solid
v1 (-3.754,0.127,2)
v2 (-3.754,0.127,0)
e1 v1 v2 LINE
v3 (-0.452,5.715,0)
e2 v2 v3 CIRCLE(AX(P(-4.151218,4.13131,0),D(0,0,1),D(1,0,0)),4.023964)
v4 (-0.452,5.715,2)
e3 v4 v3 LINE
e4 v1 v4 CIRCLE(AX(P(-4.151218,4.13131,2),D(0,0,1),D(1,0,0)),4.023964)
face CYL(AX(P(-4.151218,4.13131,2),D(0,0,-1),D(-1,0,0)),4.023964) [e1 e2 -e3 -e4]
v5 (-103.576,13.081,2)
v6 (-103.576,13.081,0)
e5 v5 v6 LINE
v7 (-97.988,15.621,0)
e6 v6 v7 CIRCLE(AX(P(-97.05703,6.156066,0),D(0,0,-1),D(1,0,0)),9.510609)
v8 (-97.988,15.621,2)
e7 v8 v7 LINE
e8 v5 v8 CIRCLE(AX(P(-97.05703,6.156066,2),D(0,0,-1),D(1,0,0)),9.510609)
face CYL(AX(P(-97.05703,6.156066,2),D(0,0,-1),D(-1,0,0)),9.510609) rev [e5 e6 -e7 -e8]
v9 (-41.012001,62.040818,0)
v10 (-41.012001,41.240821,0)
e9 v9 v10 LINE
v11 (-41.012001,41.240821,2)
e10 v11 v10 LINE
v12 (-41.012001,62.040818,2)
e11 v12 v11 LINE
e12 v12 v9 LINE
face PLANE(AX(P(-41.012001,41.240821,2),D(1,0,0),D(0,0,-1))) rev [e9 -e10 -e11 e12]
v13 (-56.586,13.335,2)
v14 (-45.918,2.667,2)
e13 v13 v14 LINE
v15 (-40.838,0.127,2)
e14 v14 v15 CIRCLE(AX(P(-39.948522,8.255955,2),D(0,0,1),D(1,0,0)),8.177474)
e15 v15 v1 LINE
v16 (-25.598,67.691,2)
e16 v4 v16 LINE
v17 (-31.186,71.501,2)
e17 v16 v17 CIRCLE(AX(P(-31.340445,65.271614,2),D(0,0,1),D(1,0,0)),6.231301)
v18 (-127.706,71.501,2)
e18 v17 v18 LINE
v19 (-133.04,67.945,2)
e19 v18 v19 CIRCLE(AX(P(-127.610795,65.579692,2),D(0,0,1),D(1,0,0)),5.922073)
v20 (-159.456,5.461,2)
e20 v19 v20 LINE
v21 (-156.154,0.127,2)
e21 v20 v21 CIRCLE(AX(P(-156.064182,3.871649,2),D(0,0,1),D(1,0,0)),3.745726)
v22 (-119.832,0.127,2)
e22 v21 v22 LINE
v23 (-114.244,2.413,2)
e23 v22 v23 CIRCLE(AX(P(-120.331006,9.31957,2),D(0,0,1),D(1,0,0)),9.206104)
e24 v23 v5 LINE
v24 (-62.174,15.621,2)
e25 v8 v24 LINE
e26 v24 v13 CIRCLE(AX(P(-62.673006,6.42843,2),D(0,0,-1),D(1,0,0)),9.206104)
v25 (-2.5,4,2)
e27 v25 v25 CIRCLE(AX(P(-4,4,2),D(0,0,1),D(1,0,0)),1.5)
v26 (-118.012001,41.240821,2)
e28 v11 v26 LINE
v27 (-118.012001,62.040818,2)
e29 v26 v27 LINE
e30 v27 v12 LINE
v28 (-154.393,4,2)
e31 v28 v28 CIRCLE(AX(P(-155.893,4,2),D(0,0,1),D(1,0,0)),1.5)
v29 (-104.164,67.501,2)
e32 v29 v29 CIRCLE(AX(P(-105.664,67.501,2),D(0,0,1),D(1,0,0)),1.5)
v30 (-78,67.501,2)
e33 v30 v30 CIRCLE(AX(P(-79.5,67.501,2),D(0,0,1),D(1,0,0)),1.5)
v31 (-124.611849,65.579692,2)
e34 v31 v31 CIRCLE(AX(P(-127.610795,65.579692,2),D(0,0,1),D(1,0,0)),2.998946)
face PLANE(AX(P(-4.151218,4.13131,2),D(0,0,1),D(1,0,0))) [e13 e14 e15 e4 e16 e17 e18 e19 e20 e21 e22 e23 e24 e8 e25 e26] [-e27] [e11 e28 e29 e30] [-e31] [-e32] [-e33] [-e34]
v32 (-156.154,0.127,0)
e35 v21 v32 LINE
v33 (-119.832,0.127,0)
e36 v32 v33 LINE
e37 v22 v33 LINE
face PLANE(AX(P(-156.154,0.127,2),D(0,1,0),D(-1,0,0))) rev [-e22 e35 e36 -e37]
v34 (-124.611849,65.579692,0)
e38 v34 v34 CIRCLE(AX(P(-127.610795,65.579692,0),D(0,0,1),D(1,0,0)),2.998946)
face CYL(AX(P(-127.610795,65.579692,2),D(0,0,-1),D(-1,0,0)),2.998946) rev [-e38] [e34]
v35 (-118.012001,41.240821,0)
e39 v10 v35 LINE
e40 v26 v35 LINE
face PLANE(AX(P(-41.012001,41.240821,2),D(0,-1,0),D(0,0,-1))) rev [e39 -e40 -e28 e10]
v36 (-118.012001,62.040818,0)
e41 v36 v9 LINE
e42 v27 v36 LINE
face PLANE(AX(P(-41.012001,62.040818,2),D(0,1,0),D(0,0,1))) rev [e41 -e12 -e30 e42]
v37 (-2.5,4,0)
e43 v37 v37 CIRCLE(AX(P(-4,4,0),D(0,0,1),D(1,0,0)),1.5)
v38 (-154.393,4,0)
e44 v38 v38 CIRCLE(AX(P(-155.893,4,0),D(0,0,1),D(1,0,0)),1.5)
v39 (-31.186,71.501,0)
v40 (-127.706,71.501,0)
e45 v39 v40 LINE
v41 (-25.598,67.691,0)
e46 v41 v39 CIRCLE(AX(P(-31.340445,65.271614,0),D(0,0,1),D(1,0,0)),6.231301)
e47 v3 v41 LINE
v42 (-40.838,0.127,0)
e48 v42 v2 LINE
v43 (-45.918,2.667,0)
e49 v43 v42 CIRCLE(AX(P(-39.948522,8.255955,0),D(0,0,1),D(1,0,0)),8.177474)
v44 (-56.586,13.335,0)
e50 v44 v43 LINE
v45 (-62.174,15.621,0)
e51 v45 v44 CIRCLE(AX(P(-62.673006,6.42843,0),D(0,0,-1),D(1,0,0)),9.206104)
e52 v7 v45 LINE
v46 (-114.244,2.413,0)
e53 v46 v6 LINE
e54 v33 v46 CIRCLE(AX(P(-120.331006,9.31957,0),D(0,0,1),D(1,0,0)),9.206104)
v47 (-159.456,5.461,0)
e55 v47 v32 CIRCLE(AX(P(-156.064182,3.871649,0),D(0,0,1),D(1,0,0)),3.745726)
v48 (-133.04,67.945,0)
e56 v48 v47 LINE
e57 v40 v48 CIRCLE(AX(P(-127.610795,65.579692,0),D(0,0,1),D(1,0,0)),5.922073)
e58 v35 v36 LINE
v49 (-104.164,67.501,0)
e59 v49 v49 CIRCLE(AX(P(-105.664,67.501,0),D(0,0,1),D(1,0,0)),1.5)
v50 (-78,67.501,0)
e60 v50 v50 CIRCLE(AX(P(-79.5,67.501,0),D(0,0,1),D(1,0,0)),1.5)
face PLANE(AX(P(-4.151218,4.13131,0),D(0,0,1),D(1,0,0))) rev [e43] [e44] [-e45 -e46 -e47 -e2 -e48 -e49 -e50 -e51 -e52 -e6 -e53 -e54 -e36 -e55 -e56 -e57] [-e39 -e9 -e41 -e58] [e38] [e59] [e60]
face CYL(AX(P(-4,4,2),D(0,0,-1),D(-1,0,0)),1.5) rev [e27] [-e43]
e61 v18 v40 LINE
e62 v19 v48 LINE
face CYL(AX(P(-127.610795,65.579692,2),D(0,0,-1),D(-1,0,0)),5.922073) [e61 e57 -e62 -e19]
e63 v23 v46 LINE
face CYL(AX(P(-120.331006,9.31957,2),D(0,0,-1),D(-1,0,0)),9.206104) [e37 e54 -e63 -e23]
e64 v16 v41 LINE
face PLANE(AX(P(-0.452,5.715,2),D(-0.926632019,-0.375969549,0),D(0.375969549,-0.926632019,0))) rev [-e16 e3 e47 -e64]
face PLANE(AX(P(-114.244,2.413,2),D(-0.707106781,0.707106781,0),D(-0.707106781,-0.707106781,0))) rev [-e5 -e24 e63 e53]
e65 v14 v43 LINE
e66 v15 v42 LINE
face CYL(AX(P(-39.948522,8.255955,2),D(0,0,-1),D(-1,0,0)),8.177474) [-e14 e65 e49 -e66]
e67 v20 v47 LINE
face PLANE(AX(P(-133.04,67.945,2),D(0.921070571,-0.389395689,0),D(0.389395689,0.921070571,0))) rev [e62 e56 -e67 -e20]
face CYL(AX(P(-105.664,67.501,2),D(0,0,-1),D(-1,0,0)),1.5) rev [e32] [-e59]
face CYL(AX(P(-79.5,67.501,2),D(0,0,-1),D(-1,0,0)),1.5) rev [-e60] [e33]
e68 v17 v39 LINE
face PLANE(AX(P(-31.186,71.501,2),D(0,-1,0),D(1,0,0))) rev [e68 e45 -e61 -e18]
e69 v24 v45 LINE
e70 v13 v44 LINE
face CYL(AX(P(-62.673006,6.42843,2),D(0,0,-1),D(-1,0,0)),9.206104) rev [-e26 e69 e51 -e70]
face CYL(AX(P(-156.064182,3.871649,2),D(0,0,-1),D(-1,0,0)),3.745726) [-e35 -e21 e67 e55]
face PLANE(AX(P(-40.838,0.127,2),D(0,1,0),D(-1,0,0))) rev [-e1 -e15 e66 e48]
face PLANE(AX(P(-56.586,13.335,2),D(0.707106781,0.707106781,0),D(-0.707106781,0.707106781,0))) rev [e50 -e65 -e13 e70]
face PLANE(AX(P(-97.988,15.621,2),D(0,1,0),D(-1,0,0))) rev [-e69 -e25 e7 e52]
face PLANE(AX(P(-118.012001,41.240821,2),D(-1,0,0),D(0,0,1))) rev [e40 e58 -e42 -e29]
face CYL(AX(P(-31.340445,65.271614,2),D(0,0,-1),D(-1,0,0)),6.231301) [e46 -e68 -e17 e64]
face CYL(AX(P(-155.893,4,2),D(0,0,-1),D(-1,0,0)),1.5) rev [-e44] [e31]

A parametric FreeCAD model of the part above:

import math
import FreeCAD as App
import Part
import Sketcher

V = App.Vector
Q = App.Units.Quantity

doc = App.newDocument("Part")
params = doc.addObject("Spreadsheet::Sheet", "Params")
for row, (alias, value) in enumerate([
    ("sketch1_width", "3.8 in"),
    ("sketch1_width2", "1.43 in"),
    ("sketch1_width3", "1.41 in"),
    ("sketch1_width4", "1.46 in"),
    ("pad1_length", "2 mm"),
], start=1):
    params.set(f"A{row}", alias)
    params.set(f"B{row}", "=" + value)
    params.setAlias(f"B{row}", alias)

body = doc.addObject("PartDesign::Body", "Body")

sketch1 = doc.addObject("Sketcher::SketchObject", "Sketch")
body.addObject(sketch1)
sketch1.AttachmentSupport = (doc.XY_Plane, [""])
sketch1.MapMode = "FlatFace"
sketch1.addGeometry([
    Part.LineSegment(V(-0.5, 5.7, 0), V(-25.6, 67.7, 0)),
    Part.ArcOfCircle(Part.Circle(V(-31.3, 65.3, 0), V(0, 0, 1), 6.2), math.radians(23), math.radians(89)),
    Part.LineSegment(V(-31.2, 71.5, 0), V(-127.7, 71.5, 0)),
    Part.ArcOfCircle(Part.Circle(V(-127.6, 65.6, 0), V(0, 0, 1), 5.9), math.radians(91), math.radians(156)),
    Part.LineSegment(V(-133, 67.9, 0), V(-159.5, 5.5, 0)),
    Part.ArcOfCircle(Part.Circle(V(-156.1, 3.9, 0), V(0, 0, 1), 3.7), math.radians(155), math.radians(269)),
    Part.LineSegment(V(-156.2, 0.1, 0), V(-119.8, 0.1, 0)),
    Part.ArcOfCircle(Part.Circle(V(-120.3, 9.3, 0), V(0, 0, 1), 9.2), math.radians(-87), math.radians(-49)),
    Part.LineSegment(V(-114.2, 2.4, 0), V(-103.6, 13.1, 0)),
    Part.ArcOfCircle(Part.Circle(V(-97.1, 6.2, 0), V(0, 0, 1), 9.5), math.radians(96), math.radians(133)),
    Part.LineSegment(V(-98, 15.6, 0), V(-62.2, 15.6, 0)),
    Part.ArcOfCircle(Part.Circle(V(-62.7, 6.4, 0), V(0, 0, 1), 9.2), math.radians(49), math.radians(87)),
    Part.LineSegment(V(-56.6, 13.3, 0), V(-45.9, 2.7, 0)),
    Part.ArcOfCircle(Part.Circle(V(-39.9, 8.3, 0), V(0, 0, 1), 8.2), math.radians(-137), math.radians(-96)),
    Part.LineSegment(V(-40.8, 0.1, 0), V(-3.8, 0.1, 0)),
    Part.ArcOfCircle(Part.Circle(V(-4.2, 4.1, 0), V(0, 0, 1), 4), math.radians(-84), math.radians(23)),
    Part.Circle(V(-155.9, 4, 0), V(0, 0, 1), 1.5),
    Part.Circle(V(-4, 4, 0), V(0, 0, 1), 1.5),
    Part.Circle(V(-127.6, 65.6, 0), V(0, 0, 1), 3),
    Part.Circle(V(-105.7, 67.5, 0), V(0, 0, 1), 1.5),
    Part.Circle(V(-79.5, 67.5, 0), V(0, 0, 1), 1.5),
], False)
sketch1.addConstraint([
    Sketcher.Constraint("Coincident", 0, 2, 1, 1),
    Sketcher.Constraint("Coincident", 1, 2, 2, 1),
    Sketcher.Constraint("Coincident", 2, 2, 3, 1),
    Sketcher.Constraint("Coincident", 3, 2, 4, 1),
    Sketcher.Constraint("Coincident", 4, 2, 5, 1),
    Sketcher.Constraint("Coincident", 5, 2, 6, 1),
    Sketcher.Constraint("Coincident", 6, 2, 7, 1),
    Sketcher.Constraint("Coincident", 7, 2, 8, 1),
    Sketcher.Constraint("Coincident", 8, 2, 9, 2),
    Sketcher.Constraint("Coincident", 9, 1, 10, 1),
    Sketcher.Constraint("Coincident", 10, 2, 11, 2),
    Sketcher.Constraint("Coincident", 11, 1, 12, 1),
    Sketcher.Constraint("Coincident", 12, 2, 13, 1),
    Sketcher.Constraint("Coincident", 13, 2, 14, 1),
    Sketcher.Constraint("Coincident", 14, 2, 15, 1),
    Sketcher.Constraint("Coincident", 15, 2, 0, 1),
    Sketcher.Constraint("Horizontal", 2),
    Sketcher.Constraint("Horizontal", 6),
    Sketcher.Constraint("Horizontal", 10),
    Sketcher.Constraint("Horizontal", 14),
    Sketcher.Constraint("Coincident", 18, 3, 3, 3),
    Sketcher.Constraint("Equal", 7, 11),
    Sketcher.Constraint("Equal", 16, 17),
    Sketcher.Constraint("Equal", 17, 19),
    Sketcher.Constraint("Equal", 19, 20),
    Sketcher.Constraint("Perpendicular", 8, 12),
    Sketcher.Constraint("Horizontal", 16, 3, 17, 3),
    Sketcher.Constraint("Horizontal", 19, 3, 20, 3),
    Sketcher.Constraint("Horizontal", 6, 2, 13, 2),
    Sketcher.Constraint("Equal", 8, 12),
    Sketcher.Constraint("DistanceX", 2, 2, 2, 1, Q("3.8 in")),
    Sketcher.Constraint("Angle", 8, Q("45 deg")),
    Sketcher.Constraint("DistanceX", 6, 1, 6, 2, Q("1.43 in")),
    Sketcher.Constraint("DistanceX", 10, 1, 10, 2, Q("1.41 in")),
    Sketcher.Constraint("DistanceX", 14, 1, 14, 2, Q("1.46 in")),
    Sketcher.Constraint("DistanceY", 8, 2, 9, 1, Q("0.1 in")),
    Sketcher.Constraint("DistanceX", 12, 2, 13, 2, Q("0.2 in")),
    Sketcher.Constraint("DistanceY", 13, 2, 12, 2, Q("0.1 in")),
    Sketcher.Constraint("Diameter", 16, Q("3 mm")),
    Sketcher.Constraint("DistanceX", 19, 3, -1, 1, Q("4.16 in")),
    Sketcher.Constraint("Radius", 1, Q("6.231301 mm")),
    Sketcher.Constraint("DistanceX", 7, 3, 11, 3, Q("2.27 in")),
    Sketcher.Constraint("DistanceX", 1, 2, 0, 2, Q("0.22 in")),
    Sketcher.Constraint("DistanceY", 0, 2, 1, 2, Q("0.15 in")),
    Sketcher.Constraint("DistanceX", 3, 2, 2, 2, Q("0.21 in")),
    Sketcher.Constraint("DistanceY", 3, 2, 2, 2, Q("0.14 in")),
    Sketcher.Constraint("DistanceX", 4, 2, 3, 2, Q("1.04 in")),
    Sketcher.Constraint("DistanceY", 4, 2, 3, 2, Q("2.46 in")),
    Sketcher.Constraint("DistanceX", 4, 2, 5, 2, Q("0.13 in")),
    Sketcher.Constraint("DistanceY", 5, 2, 4, 2, Q("0.21 in")),
    Sketcher.Constraint("DistanceX", 6, 2, 7, 2, Q("0.22 in")),
    Sketcher.Constraint("DistanceY", 6, 2, 7, 2, Q("0.09 in")),
    Sketcher.Constraint("DistanceX", 7, 2, 8, 2, Q("0.42 in")),
    Sketcher.Constraint("DistanceX", 8, 2, 9, 1, Q("0.22 in")),
    Sketcher.Constraint("DistanceX", 14, 2, 15, 2, Q("0.13 in")),
    Sketcher.Constraint("DistanceY", 14, 2, 15, 2, Q("0.22 in")),
    Sketcher.Constraint("Diameter", 18, Q("5.997892 mm")),
    Sketcher.Constraint("DistanceY", -1, 1, 0, 2, Q("2.665 in")),
    Sketcher.Constraint("Radius", 9, Q("9.510609 mm")),
    Sketcher.Constraint("Radius", 3, Q("5.922073 mm")),
    Sketcher.Constraint("Radius", 5, Q("3.745726 mm")),
    Sketcher.Constraint("Radius", 7, Q("9.206104 mm")),
    Sketcher.Constraint("Radius", 13, Q("8.177474 mm")),
    Sketcher.Constraint("Radius", 15, Q("4.023964 mm")),
    Sketcher.Constraint("DistanceX", 16, 3, -1, 1, Q("155.893 mm")),
    Sketcher.Constraint("DistanceY", -1, 1, 16, 3, Q("4 mm")),
    Sketcher.Constraint("DistanceX", 17, 3, -1, 1, Q("4 mm")),
    Sketcher.Constraint("DistanceY", -1, 1, 19, 3, Q("67.501 mm")),
    Sketcher.Constraint("DistanceX", 20, 3, -1, 1, Q("79.5 mm")),
    Sketcher.Constraint("DistanceX", 0, 2, -1, 1, Q("25.598 mm")),
])
sketch1.setExpression("Constraints[30]", "Params.sketch1_width")
sketch1.setExpression("Constraints[32]", "Params.sketch1_width2")
sketch1.setExpression("Constraints[33]", "Params.sketch1_width3")
sketch1.setExpression("Constraints[34]", "Params.sketch1_width4")
pad1 = doc.addObject("PartDesign::Pad", "Pad")
body.addObject(pad1)
pad1.Profile = sketch1
pad1.setExpression("Length", "Params.pad1_length")

sketch2 = doc.addObject("Sketcher::SketchObject", "Sketch001")
body.addObject(sketch2)
sketch2.AttachmentSupport = (doc.XY_Plane, [""])
sketch2.MapMode = "FlatFace"
sketch2.addGeometry([
    Part.LineSegment(V(-41, 62, 0), V(-41, 41, 0)),
    Part.LineSegment(V(-41, 41, 0), V(-118, 41, 0)),
    Part.LineSegment(V(-118, 41, 0), V(-118, 62, 0)),
    Part.LineSegment(V(-118, 62, 0), V(-41, 62, 0)),
], False)
sketch2.addConstraint([
    Sketcher.Constraint("Coincident", 0, 2, 1, 1),
    Sketcher.Constraint("Coincident", 1, 2, 2, 1),
    Sketcher.Constraint("Coincident", 2, 2, 3, 1),
    Sketcher.Constraint("Coincident", 3, 2, 0, 1),
    Sketcher.Constraint("Vertical", 0),
    Sketcher.Constraint("Horizontal", 1),
    Sketcher.Constraint("Vertical", 2),
    Sketcher.Constraint("Horizontal", 3),
    Sketcher.Constraint("DistanceX", 1, 2, 1, 1, Q("77.000001 mm")),
    Sketcher.Constraint("DistanceX", 0, 2, -1, 1, Q("41.012001 mm")),
    Sketcher.Constraint("DistanceY", 0, 2, 0, 1, Q("20.799997 mm")),
    Sketcher.Constraint("DistanceY", -1, 1, 0, 2, Q("41.240821 mm")),
])
pocket1 = doc.addObject("PartDesign::Pocket", "Pocket")
body.addObject(pocket1)
pocket1.Profile = sketch2
pocket1.Type = "ThroughAll"
pocket1.Reversed = True

doc.recompute()
